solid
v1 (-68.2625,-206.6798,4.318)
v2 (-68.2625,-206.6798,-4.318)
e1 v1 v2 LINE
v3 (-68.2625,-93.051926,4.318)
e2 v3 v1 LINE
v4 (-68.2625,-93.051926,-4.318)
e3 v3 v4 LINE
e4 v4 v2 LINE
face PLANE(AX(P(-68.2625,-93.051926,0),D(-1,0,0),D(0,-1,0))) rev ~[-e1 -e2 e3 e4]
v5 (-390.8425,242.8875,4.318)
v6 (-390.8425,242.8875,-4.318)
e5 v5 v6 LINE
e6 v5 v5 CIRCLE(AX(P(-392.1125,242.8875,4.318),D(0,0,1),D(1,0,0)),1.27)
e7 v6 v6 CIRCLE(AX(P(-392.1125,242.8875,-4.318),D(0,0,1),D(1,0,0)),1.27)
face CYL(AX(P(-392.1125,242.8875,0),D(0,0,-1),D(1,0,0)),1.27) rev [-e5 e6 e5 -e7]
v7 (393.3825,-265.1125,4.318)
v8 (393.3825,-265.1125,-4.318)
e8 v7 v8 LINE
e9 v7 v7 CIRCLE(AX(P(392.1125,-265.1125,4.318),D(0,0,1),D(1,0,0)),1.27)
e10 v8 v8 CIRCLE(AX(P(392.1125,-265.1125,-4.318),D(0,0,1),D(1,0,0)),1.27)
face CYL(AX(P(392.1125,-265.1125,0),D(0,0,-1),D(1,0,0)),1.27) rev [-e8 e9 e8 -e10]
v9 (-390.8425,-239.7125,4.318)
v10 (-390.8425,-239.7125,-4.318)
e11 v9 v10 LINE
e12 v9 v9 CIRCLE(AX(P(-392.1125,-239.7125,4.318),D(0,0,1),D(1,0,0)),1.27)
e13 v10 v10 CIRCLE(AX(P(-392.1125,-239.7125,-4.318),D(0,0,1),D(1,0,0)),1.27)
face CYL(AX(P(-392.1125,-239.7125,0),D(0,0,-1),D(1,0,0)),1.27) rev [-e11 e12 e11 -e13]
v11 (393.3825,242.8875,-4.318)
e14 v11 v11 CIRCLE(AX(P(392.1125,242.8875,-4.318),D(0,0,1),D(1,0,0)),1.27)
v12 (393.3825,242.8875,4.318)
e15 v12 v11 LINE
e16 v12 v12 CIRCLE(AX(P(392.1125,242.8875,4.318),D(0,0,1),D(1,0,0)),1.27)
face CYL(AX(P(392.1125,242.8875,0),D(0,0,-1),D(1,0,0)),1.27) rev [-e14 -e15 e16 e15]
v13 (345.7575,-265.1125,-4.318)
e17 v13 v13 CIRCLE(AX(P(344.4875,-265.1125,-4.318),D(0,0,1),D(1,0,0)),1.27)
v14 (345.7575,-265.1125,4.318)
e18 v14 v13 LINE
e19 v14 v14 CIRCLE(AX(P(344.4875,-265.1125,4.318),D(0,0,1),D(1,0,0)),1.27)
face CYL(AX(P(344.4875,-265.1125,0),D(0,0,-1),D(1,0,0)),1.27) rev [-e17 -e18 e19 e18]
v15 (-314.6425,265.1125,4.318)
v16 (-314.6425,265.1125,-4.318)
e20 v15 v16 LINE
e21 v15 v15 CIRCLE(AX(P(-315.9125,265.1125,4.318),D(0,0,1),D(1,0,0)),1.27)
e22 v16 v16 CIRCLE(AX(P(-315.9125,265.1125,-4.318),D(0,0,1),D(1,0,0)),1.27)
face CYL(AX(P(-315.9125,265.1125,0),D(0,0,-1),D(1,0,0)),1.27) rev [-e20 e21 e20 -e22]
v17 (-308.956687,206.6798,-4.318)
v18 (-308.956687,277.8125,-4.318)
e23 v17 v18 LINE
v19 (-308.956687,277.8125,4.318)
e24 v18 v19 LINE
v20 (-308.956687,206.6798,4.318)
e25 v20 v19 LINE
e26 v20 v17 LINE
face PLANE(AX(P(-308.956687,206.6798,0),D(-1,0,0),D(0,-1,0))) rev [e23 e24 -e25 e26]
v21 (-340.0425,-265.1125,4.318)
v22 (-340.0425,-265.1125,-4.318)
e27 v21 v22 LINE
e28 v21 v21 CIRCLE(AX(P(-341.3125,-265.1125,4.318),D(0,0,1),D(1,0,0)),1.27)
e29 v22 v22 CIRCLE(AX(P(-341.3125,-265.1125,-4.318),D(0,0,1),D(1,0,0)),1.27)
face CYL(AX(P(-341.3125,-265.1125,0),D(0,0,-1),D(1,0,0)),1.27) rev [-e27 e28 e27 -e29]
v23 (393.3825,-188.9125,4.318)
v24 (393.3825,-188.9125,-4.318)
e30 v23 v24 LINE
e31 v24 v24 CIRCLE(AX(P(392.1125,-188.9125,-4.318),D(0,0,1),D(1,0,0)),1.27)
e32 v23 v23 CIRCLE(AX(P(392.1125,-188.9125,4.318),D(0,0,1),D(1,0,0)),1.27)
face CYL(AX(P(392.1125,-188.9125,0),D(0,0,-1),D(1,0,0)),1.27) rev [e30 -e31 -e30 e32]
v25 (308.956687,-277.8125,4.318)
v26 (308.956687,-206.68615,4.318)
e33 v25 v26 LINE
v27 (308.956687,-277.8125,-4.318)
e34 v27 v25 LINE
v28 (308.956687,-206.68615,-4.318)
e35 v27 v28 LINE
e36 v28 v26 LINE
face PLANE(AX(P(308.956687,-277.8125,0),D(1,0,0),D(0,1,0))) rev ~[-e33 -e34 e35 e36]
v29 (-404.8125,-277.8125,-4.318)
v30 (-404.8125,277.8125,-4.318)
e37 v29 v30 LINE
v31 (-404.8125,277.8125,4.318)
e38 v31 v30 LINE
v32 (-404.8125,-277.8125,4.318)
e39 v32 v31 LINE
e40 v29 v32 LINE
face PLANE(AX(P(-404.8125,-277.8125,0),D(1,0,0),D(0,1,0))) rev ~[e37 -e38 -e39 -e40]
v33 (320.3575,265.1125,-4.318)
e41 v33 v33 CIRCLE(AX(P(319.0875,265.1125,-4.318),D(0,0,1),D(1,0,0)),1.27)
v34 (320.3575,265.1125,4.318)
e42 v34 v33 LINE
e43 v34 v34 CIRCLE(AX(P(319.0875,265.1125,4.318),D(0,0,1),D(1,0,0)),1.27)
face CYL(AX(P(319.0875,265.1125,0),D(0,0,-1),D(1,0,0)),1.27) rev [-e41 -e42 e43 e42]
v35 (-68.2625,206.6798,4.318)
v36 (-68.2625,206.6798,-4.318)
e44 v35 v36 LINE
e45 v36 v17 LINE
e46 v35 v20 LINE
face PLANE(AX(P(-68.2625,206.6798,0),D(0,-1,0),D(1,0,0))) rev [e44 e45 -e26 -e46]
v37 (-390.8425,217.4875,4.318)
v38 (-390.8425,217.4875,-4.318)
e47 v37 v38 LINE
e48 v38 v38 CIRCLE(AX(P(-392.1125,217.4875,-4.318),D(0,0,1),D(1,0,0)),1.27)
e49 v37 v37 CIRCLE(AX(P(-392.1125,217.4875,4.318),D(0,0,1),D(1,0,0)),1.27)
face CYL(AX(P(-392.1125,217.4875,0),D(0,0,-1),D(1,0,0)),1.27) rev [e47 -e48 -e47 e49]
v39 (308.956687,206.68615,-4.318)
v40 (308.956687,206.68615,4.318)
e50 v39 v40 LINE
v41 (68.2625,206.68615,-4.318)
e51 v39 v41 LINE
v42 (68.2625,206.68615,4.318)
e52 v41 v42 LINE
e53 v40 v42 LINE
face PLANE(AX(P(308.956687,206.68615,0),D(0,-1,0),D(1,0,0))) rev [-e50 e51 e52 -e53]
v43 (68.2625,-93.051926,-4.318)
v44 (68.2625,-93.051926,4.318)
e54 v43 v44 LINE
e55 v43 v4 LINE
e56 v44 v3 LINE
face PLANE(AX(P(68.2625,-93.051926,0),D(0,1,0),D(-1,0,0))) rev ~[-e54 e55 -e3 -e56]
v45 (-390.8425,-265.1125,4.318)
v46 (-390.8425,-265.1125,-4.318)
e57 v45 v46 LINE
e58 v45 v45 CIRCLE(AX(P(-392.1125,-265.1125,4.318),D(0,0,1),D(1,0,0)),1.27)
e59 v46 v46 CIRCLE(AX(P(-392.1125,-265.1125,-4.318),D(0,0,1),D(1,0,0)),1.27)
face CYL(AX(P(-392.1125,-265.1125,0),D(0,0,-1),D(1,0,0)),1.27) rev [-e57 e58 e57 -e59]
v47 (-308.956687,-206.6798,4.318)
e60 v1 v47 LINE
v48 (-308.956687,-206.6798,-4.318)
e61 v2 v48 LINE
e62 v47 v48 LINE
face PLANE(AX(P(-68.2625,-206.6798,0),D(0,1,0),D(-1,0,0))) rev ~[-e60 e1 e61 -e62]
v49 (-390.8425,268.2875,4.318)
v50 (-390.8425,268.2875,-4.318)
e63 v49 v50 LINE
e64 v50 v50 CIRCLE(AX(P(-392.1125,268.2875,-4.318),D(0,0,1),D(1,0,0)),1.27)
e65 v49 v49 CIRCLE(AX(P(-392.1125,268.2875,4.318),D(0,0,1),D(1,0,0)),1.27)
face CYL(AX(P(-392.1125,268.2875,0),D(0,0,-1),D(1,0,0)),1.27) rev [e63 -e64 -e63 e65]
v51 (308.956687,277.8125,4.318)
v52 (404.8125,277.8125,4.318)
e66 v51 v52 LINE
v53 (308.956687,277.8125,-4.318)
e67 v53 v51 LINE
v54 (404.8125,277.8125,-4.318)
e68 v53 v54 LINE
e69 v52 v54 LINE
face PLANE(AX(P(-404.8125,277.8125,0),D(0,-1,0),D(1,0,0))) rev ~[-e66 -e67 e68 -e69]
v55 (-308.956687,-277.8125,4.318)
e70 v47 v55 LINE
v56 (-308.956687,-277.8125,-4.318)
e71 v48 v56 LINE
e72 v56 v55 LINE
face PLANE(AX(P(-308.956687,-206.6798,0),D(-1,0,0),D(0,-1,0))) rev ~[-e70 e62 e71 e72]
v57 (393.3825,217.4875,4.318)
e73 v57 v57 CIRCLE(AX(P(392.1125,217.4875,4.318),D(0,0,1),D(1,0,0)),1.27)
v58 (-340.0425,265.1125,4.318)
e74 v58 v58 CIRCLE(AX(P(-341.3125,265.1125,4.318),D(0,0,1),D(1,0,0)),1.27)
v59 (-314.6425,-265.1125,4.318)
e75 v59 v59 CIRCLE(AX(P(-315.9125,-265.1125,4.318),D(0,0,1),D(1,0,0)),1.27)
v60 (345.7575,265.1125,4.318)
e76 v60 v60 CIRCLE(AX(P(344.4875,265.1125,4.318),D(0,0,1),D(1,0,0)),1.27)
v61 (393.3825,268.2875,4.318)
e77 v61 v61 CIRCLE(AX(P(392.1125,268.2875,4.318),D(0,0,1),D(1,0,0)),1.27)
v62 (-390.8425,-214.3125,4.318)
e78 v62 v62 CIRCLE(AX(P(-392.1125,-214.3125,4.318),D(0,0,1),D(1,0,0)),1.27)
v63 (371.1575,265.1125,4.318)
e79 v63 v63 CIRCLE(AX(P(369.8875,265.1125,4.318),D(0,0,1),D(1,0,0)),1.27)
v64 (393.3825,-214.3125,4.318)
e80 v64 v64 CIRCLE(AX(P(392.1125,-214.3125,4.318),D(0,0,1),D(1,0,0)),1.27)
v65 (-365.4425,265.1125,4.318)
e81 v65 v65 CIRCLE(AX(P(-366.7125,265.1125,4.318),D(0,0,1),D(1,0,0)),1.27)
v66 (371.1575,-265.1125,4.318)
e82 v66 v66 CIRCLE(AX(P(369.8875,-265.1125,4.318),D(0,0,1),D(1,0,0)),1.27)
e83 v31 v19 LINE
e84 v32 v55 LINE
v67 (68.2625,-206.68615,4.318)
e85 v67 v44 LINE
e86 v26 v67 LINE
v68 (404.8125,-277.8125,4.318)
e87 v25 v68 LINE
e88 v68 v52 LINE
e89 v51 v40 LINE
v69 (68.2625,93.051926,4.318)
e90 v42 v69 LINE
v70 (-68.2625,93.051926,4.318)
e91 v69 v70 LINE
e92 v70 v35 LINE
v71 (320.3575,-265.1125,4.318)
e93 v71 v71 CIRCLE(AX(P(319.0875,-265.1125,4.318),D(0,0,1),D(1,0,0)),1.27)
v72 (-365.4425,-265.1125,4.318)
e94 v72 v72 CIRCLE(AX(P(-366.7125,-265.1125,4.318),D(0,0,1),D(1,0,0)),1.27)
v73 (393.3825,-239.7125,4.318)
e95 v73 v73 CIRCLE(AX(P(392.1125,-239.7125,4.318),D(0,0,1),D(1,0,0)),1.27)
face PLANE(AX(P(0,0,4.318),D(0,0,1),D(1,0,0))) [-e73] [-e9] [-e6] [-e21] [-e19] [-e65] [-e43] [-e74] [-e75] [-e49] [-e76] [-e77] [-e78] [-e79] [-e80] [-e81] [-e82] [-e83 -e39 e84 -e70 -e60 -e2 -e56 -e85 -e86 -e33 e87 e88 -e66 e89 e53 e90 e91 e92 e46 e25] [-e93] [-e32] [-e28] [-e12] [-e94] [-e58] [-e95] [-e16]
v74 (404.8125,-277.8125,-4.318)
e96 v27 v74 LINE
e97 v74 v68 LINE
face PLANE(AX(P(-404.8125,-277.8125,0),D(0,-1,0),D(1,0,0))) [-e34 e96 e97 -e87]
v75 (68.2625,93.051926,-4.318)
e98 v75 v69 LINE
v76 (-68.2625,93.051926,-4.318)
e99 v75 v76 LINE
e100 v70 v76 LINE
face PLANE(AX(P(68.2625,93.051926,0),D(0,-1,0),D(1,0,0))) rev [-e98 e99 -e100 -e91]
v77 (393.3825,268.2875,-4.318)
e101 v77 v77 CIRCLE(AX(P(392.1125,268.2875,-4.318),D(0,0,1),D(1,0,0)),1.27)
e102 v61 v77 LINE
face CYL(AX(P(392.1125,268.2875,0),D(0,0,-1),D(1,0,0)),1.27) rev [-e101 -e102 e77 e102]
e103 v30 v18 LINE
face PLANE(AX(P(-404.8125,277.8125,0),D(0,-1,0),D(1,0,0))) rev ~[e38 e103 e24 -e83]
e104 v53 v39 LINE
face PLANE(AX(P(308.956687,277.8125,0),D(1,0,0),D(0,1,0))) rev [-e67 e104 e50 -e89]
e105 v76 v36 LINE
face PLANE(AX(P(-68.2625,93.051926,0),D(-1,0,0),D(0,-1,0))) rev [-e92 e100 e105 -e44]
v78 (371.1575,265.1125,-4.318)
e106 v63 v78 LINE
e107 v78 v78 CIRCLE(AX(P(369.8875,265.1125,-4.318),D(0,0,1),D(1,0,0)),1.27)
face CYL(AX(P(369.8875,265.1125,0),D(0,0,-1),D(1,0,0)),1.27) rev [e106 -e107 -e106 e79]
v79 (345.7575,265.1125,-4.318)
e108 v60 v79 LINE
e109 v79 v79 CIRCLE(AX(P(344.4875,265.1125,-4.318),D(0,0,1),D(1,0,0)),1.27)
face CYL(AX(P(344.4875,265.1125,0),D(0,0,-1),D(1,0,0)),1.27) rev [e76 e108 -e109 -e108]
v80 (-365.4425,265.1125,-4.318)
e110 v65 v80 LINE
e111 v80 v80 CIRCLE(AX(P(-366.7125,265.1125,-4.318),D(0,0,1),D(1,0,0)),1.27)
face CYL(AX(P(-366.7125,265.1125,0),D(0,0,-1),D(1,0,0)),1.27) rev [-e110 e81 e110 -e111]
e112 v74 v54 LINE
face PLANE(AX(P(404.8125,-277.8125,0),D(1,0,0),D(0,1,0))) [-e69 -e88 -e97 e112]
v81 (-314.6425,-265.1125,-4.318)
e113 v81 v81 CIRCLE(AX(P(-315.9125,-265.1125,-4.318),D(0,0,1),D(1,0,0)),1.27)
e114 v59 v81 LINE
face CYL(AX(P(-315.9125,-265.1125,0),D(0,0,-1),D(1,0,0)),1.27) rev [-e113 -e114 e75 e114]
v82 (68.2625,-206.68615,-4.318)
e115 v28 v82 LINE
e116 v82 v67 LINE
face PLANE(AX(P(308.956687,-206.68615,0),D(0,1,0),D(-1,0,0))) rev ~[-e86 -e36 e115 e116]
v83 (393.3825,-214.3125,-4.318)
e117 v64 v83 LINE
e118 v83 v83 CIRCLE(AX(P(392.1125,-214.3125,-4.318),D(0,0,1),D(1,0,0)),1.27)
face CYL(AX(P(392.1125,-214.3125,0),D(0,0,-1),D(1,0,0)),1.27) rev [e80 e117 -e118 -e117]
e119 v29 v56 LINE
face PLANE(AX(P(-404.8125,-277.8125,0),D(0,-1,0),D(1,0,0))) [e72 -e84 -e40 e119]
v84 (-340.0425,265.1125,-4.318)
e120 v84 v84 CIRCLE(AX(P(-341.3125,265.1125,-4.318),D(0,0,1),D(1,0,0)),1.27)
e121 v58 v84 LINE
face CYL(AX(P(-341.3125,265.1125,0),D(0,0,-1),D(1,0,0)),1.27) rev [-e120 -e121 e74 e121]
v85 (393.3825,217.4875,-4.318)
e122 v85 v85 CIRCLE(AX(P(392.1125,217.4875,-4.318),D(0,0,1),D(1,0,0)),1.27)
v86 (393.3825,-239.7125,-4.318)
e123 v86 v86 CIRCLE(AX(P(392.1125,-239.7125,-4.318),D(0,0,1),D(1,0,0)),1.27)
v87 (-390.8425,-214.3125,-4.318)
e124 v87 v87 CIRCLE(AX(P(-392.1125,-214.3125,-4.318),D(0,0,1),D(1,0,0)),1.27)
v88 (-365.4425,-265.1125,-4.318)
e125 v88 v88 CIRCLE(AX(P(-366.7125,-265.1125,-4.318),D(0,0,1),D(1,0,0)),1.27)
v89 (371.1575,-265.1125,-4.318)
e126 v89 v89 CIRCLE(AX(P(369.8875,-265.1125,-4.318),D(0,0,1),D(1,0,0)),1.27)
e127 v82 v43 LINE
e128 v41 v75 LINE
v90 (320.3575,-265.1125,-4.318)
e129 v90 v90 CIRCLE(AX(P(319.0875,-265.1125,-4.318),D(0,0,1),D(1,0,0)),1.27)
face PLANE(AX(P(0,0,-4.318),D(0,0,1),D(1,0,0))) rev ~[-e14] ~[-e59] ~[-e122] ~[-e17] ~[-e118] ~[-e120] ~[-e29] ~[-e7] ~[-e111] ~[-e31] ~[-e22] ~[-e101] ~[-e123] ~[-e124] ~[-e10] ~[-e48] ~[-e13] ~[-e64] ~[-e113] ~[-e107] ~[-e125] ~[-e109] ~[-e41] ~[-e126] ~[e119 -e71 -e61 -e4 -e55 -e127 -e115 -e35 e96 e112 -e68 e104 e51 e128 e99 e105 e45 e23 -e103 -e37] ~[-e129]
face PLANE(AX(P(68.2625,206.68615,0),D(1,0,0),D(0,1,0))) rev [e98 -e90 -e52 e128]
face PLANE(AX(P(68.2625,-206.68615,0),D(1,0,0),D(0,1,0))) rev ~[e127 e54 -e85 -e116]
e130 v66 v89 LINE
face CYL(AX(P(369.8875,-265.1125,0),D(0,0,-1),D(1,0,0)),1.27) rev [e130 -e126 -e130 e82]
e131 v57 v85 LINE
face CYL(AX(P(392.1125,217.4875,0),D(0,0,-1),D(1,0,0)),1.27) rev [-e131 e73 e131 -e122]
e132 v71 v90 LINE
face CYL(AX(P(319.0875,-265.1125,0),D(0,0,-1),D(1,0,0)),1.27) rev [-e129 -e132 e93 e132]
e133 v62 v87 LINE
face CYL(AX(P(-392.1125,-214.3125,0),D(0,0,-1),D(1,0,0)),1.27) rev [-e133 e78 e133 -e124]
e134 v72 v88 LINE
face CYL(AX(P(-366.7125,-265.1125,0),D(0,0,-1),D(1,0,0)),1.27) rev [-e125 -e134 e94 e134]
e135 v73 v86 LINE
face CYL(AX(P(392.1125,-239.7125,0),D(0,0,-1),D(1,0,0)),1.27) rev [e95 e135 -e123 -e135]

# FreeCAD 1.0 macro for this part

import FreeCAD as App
import Part
import Sketcher
from FreeCAD import Vector
Q = App.Units.Quantity

doc = App.newDocument("Part")
params = doc.addObject("Spreadsheet::Sheet", "Params")
for row, (alias, value) in enumerate([
    ("sketch1_diameter", "0.1 in"),
    ("sketch1_width", "31.875 in"),
    ("sketch1_height", "21.875 in"),
    ("pad1_length", "0.34 in"),
    ("sketch2_width", "5.375 in"),
    ("pocket1_length", "10.636 mm"),
], start=1):
    params.set(f"A{row}", alias)
    params.set(f"B{row}", "=" + value)
    params.setAlias(f"B{row}", alias)

body = doc.addObject("PartDesign::Body", "Body")

# Sketch on XY plane
sketch1 = body.newObject("Sketcher::SketchObject", "Sketch")
sketch1.AttachmentSupport = (doc.getObject("XY_Plane"), [""])
sketch1.MapMode = "FlatFace"
sketch1.addGeometry([
    Part.LineSegment(Vector(-404.8125, 277.8125, 0), Vector(-404.8125, -277.8125, 0)),  # 0
    Part.LineSegment(Vector(-404.8125, -277.8125, 0), Vector(404.8125, -277.8125, 0)),  # 1
    Part.LineSegment(Vector(404.8125, -277.8125, 0), Vector(404.8125, 277.8125, 0)),  # 2
    Part.LineSegment(Vector(404.8125, 277.8125, 0), Vector(-404.8125, 277.8125, 0)),  # 3
    Part.Circle(Vector(-392.1125, -265.1125, 0), Vector(0, 0, 1), 1.27),  # 4
    Part.Circle(Vector(-366.7125, -265.1125, 0), Vector(0, 0, 1), 1.27),  # 5
    Part.Circle(Vector(-392.1125, -239.7125, 0), Vector(0, 0, 1), 1.27),  # 6
    Part.Circle(Vector(-341.3125, -265.1125, 0), Vector(0, 0, 1), 1.27),  # 7
    Part.Circle(Vector(-315.9125, -265.1125, 0), Vector(0, 0, 1), 1.27),  # 8
    Part.Circle(Vector(-392.1125, -214.3125, 0), Vector(0, 0, 1), 1.27),  # 9
    Part.Circle(Vector(319.0875, -265.1125, 0), Vector(0, 0, 1), 1.27),  # 10
    Part.Circle(Vector(344.4875, -265.1125, 0), Vector(0, 0, 1), 1.27),  # 11
    Part.Circle(Vector(369.8875, -265.1125, 0), Vector(0, 0, 1), 1.27),  # 12
    Part.Circle(Vector(392.1125, -265.1125, 0), Vector(0, 0, 1), 1.27),  # 13
    Part.Circle(Vector(392.1125, -239.7125, 0), Vector(0, 0, 1), 1.27),  # 14
    Part.Circle(Vector(392.1125, -214.3125, 0), Vector(0, 0, 1), 1.27),  # 15
    Part.Circle(Vector(392.1125, -188.9125, 0), Vector(0, 0, 1), 1.27),  # 16
    Part.Circle(Vector(-392.1125, 217.4875, 0), Vector(0, 0, 1), 1.27),  # 17
    Part.Circle(Vector(-392.1125, 242.8875, 0), Vector(0, 0, 1), 1.27),  # 18
    Part.Circle(Vector(-392.1125, 268.2875, 0), Vector(0, 0, 1), 1.27),  # 19
    Part.Circle(Vector(-366.7125, 265.1125, 0), Vector(0, 0, 1), 1.27),  # 20
    Part.Circle(Vector(-341.3125, 265.1125, 0), Vector(0, 0, 1), 1.27),  # 21
    Part.Circle(Vector(-315.9125, 265.1125, 0), Vector(0, 0, 1), 1.27),  # 22
    Part.Circle(Vector(392.1125, 217.4875, 0), Vector(0, 0, 1), 1.27),  # 23
    Part.Circle(Vector(319.0875, 265.1125, 0), Vector(0, 0, 1), 1.27),  # 24
    Part.Circle(Vector(392.1125, 242.8875, 0), Vector(0, 0, 1), 1.27),  # 25
    Part.Circle(Vector(344.4875, 265.1125, 0), Vector(0, 0, 1), 1.27),  # 26
    Part.Circle(Vector(369.8875, 265.1125, 0), Vector(0, 0, 1), 1.27),  # 27
    Part.Circle(Vector(392.1125, 268.2875, 0), Vector(0, 0, 1), 1.27),  # 28
], False)
sketch1.addConstraint([
    Sketcher.Constraint("Coincident", 0, 2, 1, 1),
    Sketcher.Constraint("Coincident", 1, 2, 2, 1),
    Sketcher.Constraint("Coincident", 2, 2, 3, 1),
    Sketcher.Constraint("Coincident", 3, 2, 0, 1),
    Sketcher.Constraint("Vertical", 0),
    Sketcher.Constraint("Horizontal", 1),
    Sketcher.Constraint("Vertical", 2),
    Sketcher.Constraint("Horizontal", 3),
    Sketcher.Constraint("Equal", 4, 5),
    Sketcher.Constraint("Equal", 5, 6),
    Sketcher.Constraint("Equal", 6, 7),
    Sketcher.Constraint("Equal", 7, 8),
    Sketcher.Constraint("Equal", 8, 9),
    Sketcher.Constraint("Equal", 9, 10),
    Sketcher.Constraint("Equal", 10, 11),
    Sketcher.Constraint("Equal", 11, 12),
    Sketcher.Constraint("Equal", 12, 13),
    Sketcher.Constraint("Equal", 13, 14),
    Sketcher.Constraint("Equal", 14, 15),
    Sketcher.Constraint("Equal", 15, 16),
    Sketcher.Constraint("Equal", 16, 17),
    Sketcher.Constraint("Equal", 17, 18),
    Sketcher.Constraint("Equal", 18, 19),
    Sketcher.Constraint("Equal", 19, 20),
    Sketcher.Constraint("Equal", 20, 21),
    Sketcher.Constraint("Equal", 21, 22),
    Sketcher.Constraint("Equal", 22, 23),
    Sketcher.Constraint("Equal", 23, 24),
    Sketcher.Constraint("Equal", 24, 25),
    Sketcher.Constraint("Equal", 25, 26),
    Sketcher.Constraint("Equal", 26, 27),
    Sketcher.Constraint("Equal", 27, 28),
    Sketcher.Constraint("Symmetric", 0, 2, 2, 2, -1, 1),
    Sketcher.Constraint("Symmetric", 4, 3, 13, 3, -2),
    Sketcher.Constraint("Symmetric", 6, 3, 14, 3, -2),
    Sketcher.Constraint("Symmetric", 9, 3, 15, 3, -2),
    Sketcher.Constraint("Symmetric", 17, 3, 23, 3, -2),
    Sketcher.Constraint("Symmetric", 18, 3, 25, 3, -2),
    Sketcher.Constraint("Symmetric", 19, 3, 28, 3, -2),
    Sketcher.Constraint("Symmetric", 5, 3, 20, 3, -1),
    Sketcher.Constraint("Symmetric", 7, 3, 21, 3, -1),
    Sketcher.Constraint("Symmetric", 8, 3, 22, 3, -1),
    Sketcher.Constraint("Symmetric", 10, 3, 24, 3, -1),
    Sketcher.Constraint("Symmetric", 11, 3, 26, 3, -1),
    Sketcher.Constraint("Symmetric", 12, 3, 27, 3, -1),
    Sketcher.Constraint("Horizontal", 4, 3, 5, 3),
    Sketcher.Constraint("Horizontal", 5, 3, 7, 3),
    Sketcher.Constraint("Horizontal", 7, 3, 8, 3),
    Sketcher.Constraint("Horizontal", 8, 3, 10, 3),
    Sketcher.Constraint("Horizontal", 10, 3, 11, 3),
    Sketcher.Constraint("Horizontal", 11, 3, 12, 3),
    Sketcher.Constraint("Vertical", 4, 3, 6, 3),
    Sketcher.Constraint("Vertical", 6, 3, 9, 3),
    Sketcher.Constraint("Vertical", 15, 3, 16, 3),
    Sketcher.Constraint("Vertical", 9, 3, 17, 3),
    Sketcher.Constraint("Vertical", 17, 3, 18, 3),
    Sketcher.Constraint("Vertical", 18, 3, 19, 3),
    Sketcher.Constraint("Diameter", 4, Q("0.1 in")),
    Sketcher.Constraint("DistanceX", 4, 3, 5, 3, Q("1 in")),
    Sketcher.Constraint("DistanceY", 4, 3, 6, 3, Q("1 in")),
    Sketcher.Constraint("DistanceX", 5, 3, 7, 3, Q("1 in")),
    Sketcher.Constraint("DistanceX", 7, 3, 8, 3, Q("1 in")),
    Sketcher.Constraint("DistanceY", 6, 3, 9, 3, Q("1 in")),
    Sketcher.Constraint("DistanceX", 8, 3, 10, 3, Q("25 in")),
    Sketcher.Constraint("DistanceX", 10, 3, 11, 3, Q("1 in")),
    Sketcher.Constraint("DistanceX", 11, 3, 12, 3, Q("1 in")),
    Sketcher.Constraint("DistanceY", 15, 3, 16, 3, Q("1 in")),
    Sketcher.Constraint("DistanceY", 9, 3, 17, 3, Q("17 in")),
    Sketcher.Constraint("DistanceY", 17, 3, 18, 3, Q("1 in")),
    Sketcher.Constraint("DistanceY", 18, 3, 19, 3, Q("1 in")),
    Sketcher.Constraint("DistanceX", 0, 2, 4, 3, Q("0.5 in")),
    Sketcher.Constraint("DistanceY", 0, 2, 4, 3, Q("0.5 in")),
    Sketcher.Constraint("DistanceX", 1, 1, 1, 2, Q("31.875 in")),
    Sketcher.Constraint("DistanceY", 0, 2, 0, 1, Q("21.875 in")),
])
sketch1.setExpression("Constraints[57]", "Params.sketch1_diameter")
sketch1.setExpression("Constraints[72]", "Params.sketch1_width")
sketch1.setExpression("Constraints[73]", "Params.sketch1_height")
pad1 = body.newObject("PartDesign::Pad", "Pad")
pad1.Profile = sketch1
pad1.setExpression("Length", "Params.pad1_length")
pad1.Midplane = True

# Sketch on XY plane
sketch2 = body.newObject("Sketcher::SketchObject", "Sketch001")
sketch2.AttachmentSupport = (doc.getObject("XY_Plane"), [""])
sketch2.MapMode = "FlatFace"
sketch2.addGeometry([
    Part.LineSegment(Vector(-308.956687, -206.6798, 0), Vector(-308.956687, -277.8125, 0)),  # 0
    Part.LineSegment(Vector(-308.956687, -277.8125, 0), Vector(308.956687, -277.8125, 0)),  # 1
    Part.LineSegment(Vector(308.956687, -277.8125, 0), Vector(308.956687, -206.68615, 0)),  # 2
    Part.LineSegment(Vector(308.956687, -206.68615, 0), Vector(68.2625, -206.68615, 0)),  # 3
    Part.LineSegment(Vector(68.2625, -206.68615, 0), Vector(68.2625, -93.051926, 0)),  # 4
    Part.LineSegment(Vector(68.2625, -93.051926, 0), Vector(-68.2625, -93.051926, 0)),  # 5
    Part.LineSegment(Vector(-68.2625, -93.051926, 0), Vector(-68.2625, -206.6798, 0)),  # 6
    Part.LineSegment(Vector(-68.2625, -206.6798, 0), Vector(-308.956687, -206.6798, 0)),  # 7
], False)
sketch2.addConstraint([
    Sketcher.Constraint("Coincident", 0, 2, 1, 1),
    Sketcher.Constraint("Coincident", 1, 2, 2, 1),
    Sketcher.Constraint("Coincident", 2, 2, 3, 1),
    Sketcher.Constraint("Coincident", 3, 2, 4, 1),
    Sketcher.Constraint("Coincident", 4, 2, 5, 1),
    Sketcher.Constraint("Coincident", 5, 2, 6, 1),
    Sketcher.Constraint("Coincident", 6, 2, 7, 1),
    Sketcher.Constraint("Coincident", 7, 2, 0, 1),
    Sketcher.Constraint("Vertical", 0),
    Sketcher.Constraint("Horizontal", 1),
    Sketcher.Constraint("Vertical", 2),
    Sketcher.Constraint("Horizontal", 3),
    Sketcher.Constraint("Vertical", 4),
    Sketcher.Constraint("Horizontal", 5),
    Sketcher.Constraint("Vertical", 6),
    Sketcher.Constraint("Horizontal", 7),
    Sketcher.Constraint("Equal", 3, 7),
    Sketcher.Constraint("DistanceX", 5, 2, 5, 1, Q("5.375 in")),
    Sketcher.Constraint("DistanceY", 0, 2, 0, 1, Q("2.8005 in")),
    Sketcher.Constraint("DistanceY", 0, 2, -1, 1, Q("10.9375 in")),
    Sketcher.Constraint("DistanceX", -1, 1, 3, 2, Q("2.6875 in")),
    Sketcher.Constraint("DistanceY", 2, 1, 2, 2, Q("71.12635 mm")),
    Sketcher.Constraint("DistanceX", 1, 1, 1, 2, Q("617.913375 mm")),
    Sketcher.Constraint("DistanceY", 4, 1, 4, 2, Q("113.634224 mm")),
])
sketch2.setExpression("Constraints[17]", "Params.sketch2_width")
pocket1 = body.newObject("PartDesign::Pocket", "Pocket")
pocket1.Profile = sketch2
pocket1.setExpression("Length", "Params.pocket1_length")
pocket1.Midplane = True
doc.recompute()

mirrored = body.newObject("PartDesign::Mirrored", "Mirrored")
mirrored.Originals = [pocket1]
mirrored.MirrorPlane = (doc.getObject("XZ_Plane"), [""])
body.Tip = mirrored

doc.recompute()
